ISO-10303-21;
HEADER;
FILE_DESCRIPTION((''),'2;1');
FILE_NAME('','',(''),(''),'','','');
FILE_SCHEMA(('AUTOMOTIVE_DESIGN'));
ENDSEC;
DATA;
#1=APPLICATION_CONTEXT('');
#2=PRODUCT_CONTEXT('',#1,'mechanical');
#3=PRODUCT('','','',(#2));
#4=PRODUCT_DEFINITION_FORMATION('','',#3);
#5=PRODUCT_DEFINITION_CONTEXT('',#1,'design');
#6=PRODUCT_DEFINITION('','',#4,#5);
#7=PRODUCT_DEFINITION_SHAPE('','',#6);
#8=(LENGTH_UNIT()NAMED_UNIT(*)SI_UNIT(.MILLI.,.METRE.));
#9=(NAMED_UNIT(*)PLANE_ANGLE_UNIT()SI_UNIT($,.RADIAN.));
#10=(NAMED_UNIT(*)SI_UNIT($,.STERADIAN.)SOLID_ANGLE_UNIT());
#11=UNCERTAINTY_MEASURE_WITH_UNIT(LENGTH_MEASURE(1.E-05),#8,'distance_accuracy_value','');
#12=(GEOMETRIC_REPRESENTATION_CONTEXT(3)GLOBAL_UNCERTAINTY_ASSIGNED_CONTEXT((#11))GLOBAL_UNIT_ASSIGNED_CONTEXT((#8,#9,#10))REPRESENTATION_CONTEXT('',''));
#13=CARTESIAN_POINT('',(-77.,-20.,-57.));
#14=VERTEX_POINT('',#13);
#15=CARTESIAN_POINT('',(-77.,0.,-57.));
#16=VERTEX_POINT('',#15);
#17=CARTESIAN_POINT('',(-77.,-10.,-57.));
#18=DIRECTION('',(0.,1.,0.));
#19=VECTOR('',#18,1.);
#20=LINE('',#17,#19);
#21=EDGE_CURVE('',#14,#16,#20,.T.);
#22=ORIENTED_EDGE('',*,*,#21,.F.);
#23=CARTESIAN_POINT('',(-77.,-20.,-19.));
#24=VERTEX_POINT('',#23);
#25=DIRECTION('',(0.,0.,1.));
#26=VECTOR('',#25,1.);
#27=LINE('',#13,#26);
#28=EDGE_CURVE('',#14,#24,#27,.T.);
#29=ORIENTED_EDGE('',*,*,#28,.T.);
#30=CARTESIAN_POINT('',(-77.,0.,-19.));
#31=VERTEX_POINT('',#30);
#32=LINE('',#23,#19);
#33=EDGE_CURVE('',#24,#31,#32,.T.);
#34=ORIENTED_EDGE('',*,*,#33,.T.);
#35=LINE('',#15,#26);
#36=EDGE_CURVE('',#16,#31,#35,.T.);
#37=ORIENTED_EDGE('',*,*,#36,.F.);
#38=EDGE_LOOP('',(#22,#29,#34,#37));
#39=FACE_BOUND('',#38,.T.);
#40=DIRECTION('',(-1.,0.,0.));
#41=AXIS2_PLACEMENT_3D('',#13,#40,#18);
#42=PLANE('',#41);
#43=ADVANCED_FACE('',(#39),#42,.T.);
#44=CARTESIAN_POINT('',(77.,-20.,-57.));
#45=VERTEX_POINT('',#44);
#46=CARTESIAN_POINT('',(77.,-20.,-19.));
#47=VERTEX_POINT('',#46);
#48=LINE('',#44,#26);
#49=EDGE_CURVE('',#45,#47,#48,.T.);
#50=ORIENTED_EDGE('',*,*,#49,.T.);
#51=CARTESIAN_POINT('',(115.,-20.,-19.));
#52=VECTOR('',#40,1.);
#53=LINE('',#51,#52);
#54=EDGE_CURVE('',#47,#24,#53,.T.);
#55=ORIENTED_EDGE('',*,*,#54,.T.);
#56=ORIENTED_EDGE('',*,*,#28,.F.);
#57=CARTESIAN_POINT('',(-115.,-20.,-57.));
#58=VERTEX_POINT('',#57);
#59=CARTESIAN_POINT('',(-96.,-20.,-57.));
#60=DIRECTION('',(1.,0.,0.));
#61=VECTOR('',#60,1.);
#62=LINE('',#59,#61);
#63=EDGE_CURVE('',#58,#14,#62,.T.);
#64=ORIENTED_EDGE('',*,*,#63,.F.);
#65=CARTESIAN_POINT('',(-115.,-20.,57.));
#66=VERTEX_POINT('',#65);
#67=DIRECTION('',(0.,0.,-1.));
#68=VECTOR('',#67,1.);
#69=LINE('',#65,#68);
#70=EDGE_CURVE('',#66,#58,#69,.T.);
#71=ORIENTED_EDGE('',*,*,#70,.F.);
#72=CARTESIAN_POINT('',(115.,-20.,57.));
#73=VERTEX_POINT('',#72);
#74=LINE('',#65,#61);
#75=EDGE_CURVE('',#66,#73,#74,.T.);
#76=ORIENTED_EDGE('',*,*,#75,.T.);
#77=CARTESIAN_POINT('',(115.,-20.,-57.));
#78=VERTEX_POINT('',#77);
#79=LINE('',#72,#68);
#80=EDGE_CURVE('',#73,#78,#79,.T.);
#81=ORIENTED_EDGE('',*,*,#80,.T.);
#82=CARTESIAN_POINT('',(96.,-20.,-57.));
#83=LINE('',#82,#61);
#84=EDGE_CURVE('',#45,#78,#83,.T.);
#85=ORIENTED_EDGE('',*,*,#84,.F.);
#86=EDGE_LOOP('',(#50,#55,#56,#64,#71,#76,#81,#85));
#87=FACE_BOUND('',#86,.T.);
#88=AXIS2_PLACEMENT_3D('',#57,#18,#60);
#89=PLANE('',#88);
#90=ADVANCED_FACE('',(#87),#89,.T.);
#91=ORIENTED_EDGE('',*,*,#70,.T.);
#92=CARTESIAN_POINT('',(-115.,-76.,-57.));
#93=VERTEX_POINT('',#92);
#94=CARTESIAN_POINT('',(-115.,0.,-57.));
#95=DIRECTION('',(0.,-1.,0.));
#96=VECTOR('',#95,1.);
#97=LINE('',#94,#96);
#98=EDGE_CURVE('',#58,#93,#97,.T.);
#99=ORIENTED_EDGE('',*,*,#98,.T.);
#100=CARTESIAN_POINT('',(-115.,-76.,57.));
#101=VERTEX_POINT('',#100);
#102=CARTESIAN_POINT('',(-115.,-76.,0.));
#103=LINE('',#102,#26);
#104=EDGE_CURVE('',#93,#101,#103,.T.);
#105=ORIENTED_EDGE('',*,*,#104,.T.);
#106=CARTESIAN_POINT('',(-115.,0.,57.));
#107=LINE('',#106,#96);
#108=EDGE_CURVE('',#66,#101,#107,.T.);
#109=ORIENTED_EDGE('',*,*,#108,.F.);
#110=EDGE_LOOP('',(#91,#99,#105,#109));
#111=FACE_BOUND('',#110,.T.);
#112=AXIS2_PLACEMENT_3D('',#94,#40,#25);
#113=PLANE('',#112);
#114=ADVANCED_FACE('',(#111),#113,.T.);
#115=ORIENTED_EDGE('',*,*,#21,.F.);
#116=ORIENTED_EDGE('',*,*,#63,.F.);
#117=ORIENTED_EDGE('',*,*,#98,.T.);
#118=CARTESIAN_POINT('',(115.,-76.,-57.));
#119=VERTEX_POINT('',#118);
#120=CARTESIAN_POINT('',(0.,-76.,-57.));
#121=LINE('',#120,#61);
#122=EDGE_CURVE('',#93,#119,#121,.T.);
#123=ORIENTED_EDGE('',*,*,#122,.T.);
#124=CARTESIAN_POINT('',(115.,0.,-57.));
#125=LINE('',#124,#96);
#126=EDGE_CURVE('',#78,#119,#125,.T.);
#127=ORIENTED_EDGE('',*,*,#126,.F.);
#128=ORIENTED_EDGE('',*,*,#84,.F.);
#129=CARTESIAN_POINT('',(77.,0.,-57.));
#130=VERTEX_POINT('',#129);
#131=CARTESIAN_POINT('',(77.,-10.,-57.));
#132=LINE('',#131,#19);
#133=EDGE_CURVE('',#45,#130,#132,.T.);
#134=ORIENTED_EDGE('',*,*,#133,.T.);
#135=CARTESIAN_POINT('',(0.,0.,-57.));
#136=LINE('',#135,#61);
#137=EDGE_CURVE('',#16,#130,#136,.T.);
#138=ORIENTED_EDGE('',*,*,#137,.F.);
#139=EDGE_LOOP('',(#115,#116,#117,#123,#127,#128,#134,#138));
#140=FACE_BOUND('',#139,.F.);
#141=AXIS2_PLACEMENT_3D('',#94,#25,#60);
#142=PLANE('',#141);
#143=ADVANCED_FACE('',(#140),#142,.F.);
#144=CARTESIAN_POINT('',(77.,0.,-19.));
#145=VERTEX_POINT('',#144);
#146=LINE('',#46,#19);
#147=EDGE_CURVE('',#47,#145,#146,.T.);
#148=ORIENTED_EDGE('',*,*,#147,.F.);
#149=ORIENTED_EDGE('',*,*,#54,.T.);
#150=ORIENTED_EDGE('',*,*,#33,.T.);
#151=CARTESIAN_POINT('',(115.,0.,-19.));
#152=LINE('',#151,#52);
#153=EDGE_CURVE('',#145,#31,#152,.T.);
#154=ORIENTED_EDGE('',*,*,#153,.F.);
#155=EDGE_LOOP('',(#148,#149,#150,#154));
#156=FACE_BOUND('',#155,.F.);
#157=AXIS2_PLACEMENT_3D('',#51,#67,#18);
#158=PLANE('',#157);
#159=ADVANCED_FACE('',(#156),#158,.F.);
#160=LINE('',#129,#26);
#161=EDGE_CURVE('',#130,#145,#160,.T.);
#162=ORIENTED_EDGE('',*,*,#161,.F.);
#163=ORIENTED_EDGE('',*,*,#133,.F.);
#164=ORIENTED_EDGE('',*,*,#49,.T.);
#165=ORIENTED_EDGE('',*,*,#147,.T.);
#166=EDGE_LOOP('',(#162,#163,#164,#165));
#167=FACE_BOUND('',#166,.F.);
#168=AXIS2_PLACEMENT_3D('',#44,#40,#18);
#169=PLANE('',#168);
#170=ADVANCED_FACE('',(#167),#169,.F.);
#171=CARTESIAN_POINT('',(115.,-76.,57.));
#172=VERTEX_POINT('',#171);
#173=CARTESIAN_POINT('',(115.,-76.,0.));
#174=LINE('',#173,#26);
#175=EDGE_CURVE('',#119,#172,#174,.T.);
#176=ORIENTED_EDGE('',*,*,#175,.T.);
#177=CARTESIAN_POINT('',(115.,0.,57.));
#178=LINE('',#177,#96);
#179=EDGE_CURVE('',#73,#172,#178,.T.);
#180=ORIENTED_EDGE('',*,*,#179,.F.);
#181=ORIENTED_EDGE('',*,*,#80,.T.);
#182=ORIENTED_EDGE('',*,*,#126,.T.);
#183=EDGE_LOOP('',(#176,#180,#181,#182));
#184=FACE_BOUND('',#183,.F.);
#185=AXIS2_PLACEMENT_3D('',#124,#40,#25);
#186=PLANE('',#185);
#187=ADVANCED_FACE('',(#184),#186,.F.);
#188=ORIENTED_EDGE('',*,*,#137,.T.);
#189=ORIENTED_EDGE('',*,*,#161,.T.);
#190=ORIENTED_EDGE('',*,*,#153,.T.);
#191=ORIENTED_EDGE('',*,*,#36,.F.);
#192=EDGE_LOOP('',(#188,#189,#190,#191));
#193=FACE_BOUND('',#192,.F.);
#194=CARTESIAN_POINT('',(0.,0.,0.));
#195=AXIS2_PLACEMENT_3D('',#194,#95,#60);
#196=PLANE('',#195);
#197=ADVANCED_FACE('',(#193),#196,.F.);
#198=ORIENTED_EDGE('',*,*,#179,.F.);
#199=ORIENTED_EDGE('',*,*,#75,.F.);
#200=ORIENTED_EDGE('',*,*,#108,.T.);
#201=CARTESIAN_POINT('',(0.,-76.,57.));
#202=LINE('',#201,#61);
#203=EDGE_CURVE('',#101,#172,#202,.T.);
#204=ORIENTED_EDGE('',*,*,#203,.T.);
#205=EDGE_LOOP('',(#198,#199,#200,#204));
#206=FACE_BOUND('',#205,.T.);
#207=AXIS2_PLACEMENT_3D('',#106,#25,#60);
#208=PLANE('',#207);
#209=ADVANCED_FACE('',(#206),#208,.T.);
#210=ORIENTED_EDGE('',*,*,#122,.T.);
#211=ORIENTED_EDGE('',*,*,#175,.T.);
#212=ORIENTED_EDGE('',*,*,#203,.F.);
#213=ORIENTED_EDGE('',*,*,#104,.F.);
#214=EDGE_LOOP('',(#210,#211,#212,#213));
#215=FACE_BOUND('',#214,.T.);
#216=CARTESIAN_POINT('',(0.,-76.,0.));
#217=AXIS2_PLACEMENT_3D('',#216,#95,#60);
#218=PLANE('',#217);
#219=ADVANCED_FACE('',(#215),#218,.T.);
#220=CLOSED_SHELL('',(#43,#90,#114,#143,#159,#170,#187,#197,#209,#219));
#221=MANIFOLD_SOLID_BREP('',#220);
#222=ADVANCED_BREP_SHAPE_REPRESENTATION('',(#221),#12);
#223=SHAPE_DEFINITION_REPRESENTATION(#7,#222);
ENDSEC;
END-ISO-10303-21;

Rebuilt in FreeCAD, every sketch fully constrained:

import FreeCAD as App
import Part
import Sketcher

doc = App.newDocument("Part")
body = doc.addObject("PartDesign::Body", "Body")

# Sketch on XZ plane
sketch1 = body.newObject("Sketcher::SketchObject", "Sketch")
sketch1.AttachmentSupport = (doc.getObject("XZ_Plane"), [""])
sketch1.MapMode = "FlatFace"
sketch1.addGeometry(Part.LineSegment(App.Vector(-115, 57, 0), App.Vector(-115, -57, 0)), False)
sketch1.addGeometry(Part.LineSegment(App.Vector(-115, -57, 0), App.Vector(115, -57, 0)), False)
sketch1.addGeometry(Part.LineSegment(App.Vector(115, -57, 0), App.Vector(115, 57, 0)), False)
sketch1.addGeometry(Part.LineSegment(App.Vector(115, 57, 0), App.Vector(-115, 57, 0)), False)
sketch1.addConstraint(Sketcher.Constraint("Coincident", 0, 2, 1, 1))
sketch1.addConstraint(Sketcher.Constraint("Coincident", 1, 2, 2, 1))
sketch1.addConstraint(Sketcher.Constraint("Coincident", 2, 2, 3, 1))
sketch1.addConstraint(Sketcher.Constraint("Coincident", 3, 2, 0, 1))
sketch1.addConstraint(Sketcher.Constraint("Vertical", 0))
sketch1.addConstraint(Sketcher.Constraint("Horizontal", 1))
sketch1.addConstraint(Sketcher.Constraint("Vertical", 2))
sketch1.addConstraint(Sketcher.Constraint("Horizontal", 3))
sketch1.addConstraint(Sketcher.Constraint("Symmetric", 0, 2, 2, 2, -1, 1))
sketch1.addConstraint(Sketcher.Constraint("DistanceX", 1, 1, 1, 2, 230.0))
sketch1.addConstraint(Sketcher.Constraint("DistanceY", 0, 2, 0, 1, 114.0))
pad1 = body.newObject("PartDesign::Pad", "Pad")
pad1.Profile = sketch1
pad1.Length = 76

# Sketch on YZ plane
sketch2 = body.newObject("Sketcher::SketchObject", "Sketch001")
sketch2.AttachmentSupport = (doc.getObject("YZ_Plane"), [""])
sketch2.MapMode = "FlatFace"
sketch2.AttachmentOffset = App.Placement(App.Vector(0, 0, 115), App.Rotation())
sketch2.addGeometry(Part.LineSegment(App.Vector(-20, 57, 0), App.Vector(-20, -19, 0)), False)
sketch2.addGeometry(Part.LineSegment(App.Vector(-20, -19, 0), App.Vector(0, -19, 0)), False)
sketch2.addGeometry(Part.LineSegment(App.Vector(0, -19, 0), App.Vector(0, 57, 0)), False)
sketch2.addGeometry(Part.LineSegment(App.Vector(0, 57, 0), App.Vector(-20, 57, 0)), False)
sketch2.addConstraint(Sketcher.Constraint("Coincident", 0, 2, 1, 1))
sketch2.addConstraint(Sketcher.Constraint("Coincident", 1, 2, 2, 1))
sketch2.addConstraint(Sketcher.Constraint("Coincident", 2, 2, 3, 1))
sketch2.addConstraint(Sketcher.Constraint("Coincident", 3, 2, 0, 1))
sketch2.addConstraint(Sketcher.Constraint("Vertical", 0))
sketch2.addConstraint(Sketcher.Constraint("Horizontal", 1))
sketch2.addConstraint(Sketcher.Constraint("Vertical", 2))
sketch2.addConstraint(Sketcher.Constraint("Horizontal", 3))
sketch2.addConstraint(Sketcher.Constraint("PointOnObject", 1, 2, -2))
sketch2.addConstraint(Sketcher.Constraint("DistanceX", 1, 1, 1, 2, 20.0))
sketch2.addConstraint(Sketcher.Constraint("DistanceY", 0, 2, 0, 1, 76.0))
sketch2.addConstraint(Sketcher.Constraint("DistanceY", 0, 2, -1, 1, 19.0))
pocket1 = body.newObject("PartDesign::Pocket", "Pocket")
pocket1.Profile = sketch2
pocket1.Type = "ThroughAll"

# Sketch on XY plane
sketch3 = body.newObject("Sketcher::SketchObject", "Sketch002")
sketch3.AttachmentSupport = (doc.getObject("XY_Plane"), [""])
sketch3.MapMode = "FlatFace"
sketch3.AttachmentOffset = App.Placement(App.Vector(0, 0, -57), App.Rotation())
sketch3.addGeometry(Part.LineSegment(App.Vector(-115, 0, 0), App.Vector(-115, -20, 0)), False)
sketch3.addGeometry(Part.LineSegment(App.Vector(-115, -20, 0), App.Vector(-77, -20, 0)), False)
sketch3.addGeometry(Part.LineSegment(App.Vector(-77, -20, 0), App.Vector(-77, 0, 0)), False)
sketch3.addGeometry(Part.LineSegment(App.Vector(-77, 0, 0), App.Vector(-115, 0, 0)), False)
sketch3.addGeometry(Part.LineSegment(App.Vector(77, 0, 0), App.Vector(77, -20, 0)), False)
sketch3.addGeometry(Part.LineSegment(App.Vector(77, -20, 0), App.Vector(115, -20, 0)), False)
sketch3.addGeometry(Part.LineSegment(App.Vector(115, -20, 0), App.Vector(115, 0, 0)), False)
sketch3.addGeometry(Part.LineSegment(App.Vector(115, 0, 0), App.Vector(77, 0, 0)), False)
sketch3.addConstraint(Sketcher.Constraint("Coincident", 0, 2, 1, 1))
sketch3.addConstraint(Sketcher.Constraint("Coincident", 1, 2, 2, 1))
sketch3.addConstraint(Sketcher.Constraint("Coincident", 2, 2, 3, 1))
sketch3.addConstraint(Sketcher.Constraint("Coincident", 3, 2, 0, 1))
sketch3.addConstraint(Sketcher.Constraint("Coincident", 4, 2, 5, 1))
sketch3.addConstraint(Sketcher.Constraint("Coincident", 5, 2, 6, 1))
sketch3.addConstraint(Sketcher.Constraint("Coincident", 6, 2, 7, 1))
sketch3.addConstraint(Sketcher.Constraint("Coincident", 7, 2, 4, 1))
sketch3.addConstraint(Sketcher.Constraint("Vertical", 0))
sketch3.addConstraint(Sketcher.Constraint("Horizontal", 1))
sketch3.addConstraint(Sketcher.Constraint("Vertical", 2))
sketch3.addConstraint(Sketcher.Constraint("Horizontal", 3))
sketch3.addConstraint(Sketcher.Constraint("Vertical", 4))
sketch3.addConstraint(Sketcher.Constraint("Horizontal", 5))
sketch3.addConstraint(Sketcher.Constraint("Vertical", 6))
sketch3.addConstraint(Sketcher.Constraint("Horizontal", 7))
sketch3.addConstraint(Sketcher.Constraint("Symmetric", 3, 2, 6, 2, -1, 1))
sketch3.addConstraint(Sketcher.Constraint("Symmetric", 1, 2, 4, 2, -2))
sketch3.addConstraint(Sketcher.Constraint("PointOnObject", 2, 2, -1))
sketch3.addConstraint(Sketcher.Constraint("DistanceX", 1, 1, 1, 2, 38.0))
sketch3.addConstraint(Sketcher.Constraint("DistanceY", 0, 2, 0, 1, 20.0))
sketch3.addConstraint(Sketcher.Constraint("DistanceX", 0, 2, -1, 1, 115.0))
pocket2 = body.newObject("PartDesign::Pocket", "Pocket001")
pocket2.Profile = sketch3
pocket2.Type = "ThroughAll"
pocket2.Reversed = True

doc.recompute()
